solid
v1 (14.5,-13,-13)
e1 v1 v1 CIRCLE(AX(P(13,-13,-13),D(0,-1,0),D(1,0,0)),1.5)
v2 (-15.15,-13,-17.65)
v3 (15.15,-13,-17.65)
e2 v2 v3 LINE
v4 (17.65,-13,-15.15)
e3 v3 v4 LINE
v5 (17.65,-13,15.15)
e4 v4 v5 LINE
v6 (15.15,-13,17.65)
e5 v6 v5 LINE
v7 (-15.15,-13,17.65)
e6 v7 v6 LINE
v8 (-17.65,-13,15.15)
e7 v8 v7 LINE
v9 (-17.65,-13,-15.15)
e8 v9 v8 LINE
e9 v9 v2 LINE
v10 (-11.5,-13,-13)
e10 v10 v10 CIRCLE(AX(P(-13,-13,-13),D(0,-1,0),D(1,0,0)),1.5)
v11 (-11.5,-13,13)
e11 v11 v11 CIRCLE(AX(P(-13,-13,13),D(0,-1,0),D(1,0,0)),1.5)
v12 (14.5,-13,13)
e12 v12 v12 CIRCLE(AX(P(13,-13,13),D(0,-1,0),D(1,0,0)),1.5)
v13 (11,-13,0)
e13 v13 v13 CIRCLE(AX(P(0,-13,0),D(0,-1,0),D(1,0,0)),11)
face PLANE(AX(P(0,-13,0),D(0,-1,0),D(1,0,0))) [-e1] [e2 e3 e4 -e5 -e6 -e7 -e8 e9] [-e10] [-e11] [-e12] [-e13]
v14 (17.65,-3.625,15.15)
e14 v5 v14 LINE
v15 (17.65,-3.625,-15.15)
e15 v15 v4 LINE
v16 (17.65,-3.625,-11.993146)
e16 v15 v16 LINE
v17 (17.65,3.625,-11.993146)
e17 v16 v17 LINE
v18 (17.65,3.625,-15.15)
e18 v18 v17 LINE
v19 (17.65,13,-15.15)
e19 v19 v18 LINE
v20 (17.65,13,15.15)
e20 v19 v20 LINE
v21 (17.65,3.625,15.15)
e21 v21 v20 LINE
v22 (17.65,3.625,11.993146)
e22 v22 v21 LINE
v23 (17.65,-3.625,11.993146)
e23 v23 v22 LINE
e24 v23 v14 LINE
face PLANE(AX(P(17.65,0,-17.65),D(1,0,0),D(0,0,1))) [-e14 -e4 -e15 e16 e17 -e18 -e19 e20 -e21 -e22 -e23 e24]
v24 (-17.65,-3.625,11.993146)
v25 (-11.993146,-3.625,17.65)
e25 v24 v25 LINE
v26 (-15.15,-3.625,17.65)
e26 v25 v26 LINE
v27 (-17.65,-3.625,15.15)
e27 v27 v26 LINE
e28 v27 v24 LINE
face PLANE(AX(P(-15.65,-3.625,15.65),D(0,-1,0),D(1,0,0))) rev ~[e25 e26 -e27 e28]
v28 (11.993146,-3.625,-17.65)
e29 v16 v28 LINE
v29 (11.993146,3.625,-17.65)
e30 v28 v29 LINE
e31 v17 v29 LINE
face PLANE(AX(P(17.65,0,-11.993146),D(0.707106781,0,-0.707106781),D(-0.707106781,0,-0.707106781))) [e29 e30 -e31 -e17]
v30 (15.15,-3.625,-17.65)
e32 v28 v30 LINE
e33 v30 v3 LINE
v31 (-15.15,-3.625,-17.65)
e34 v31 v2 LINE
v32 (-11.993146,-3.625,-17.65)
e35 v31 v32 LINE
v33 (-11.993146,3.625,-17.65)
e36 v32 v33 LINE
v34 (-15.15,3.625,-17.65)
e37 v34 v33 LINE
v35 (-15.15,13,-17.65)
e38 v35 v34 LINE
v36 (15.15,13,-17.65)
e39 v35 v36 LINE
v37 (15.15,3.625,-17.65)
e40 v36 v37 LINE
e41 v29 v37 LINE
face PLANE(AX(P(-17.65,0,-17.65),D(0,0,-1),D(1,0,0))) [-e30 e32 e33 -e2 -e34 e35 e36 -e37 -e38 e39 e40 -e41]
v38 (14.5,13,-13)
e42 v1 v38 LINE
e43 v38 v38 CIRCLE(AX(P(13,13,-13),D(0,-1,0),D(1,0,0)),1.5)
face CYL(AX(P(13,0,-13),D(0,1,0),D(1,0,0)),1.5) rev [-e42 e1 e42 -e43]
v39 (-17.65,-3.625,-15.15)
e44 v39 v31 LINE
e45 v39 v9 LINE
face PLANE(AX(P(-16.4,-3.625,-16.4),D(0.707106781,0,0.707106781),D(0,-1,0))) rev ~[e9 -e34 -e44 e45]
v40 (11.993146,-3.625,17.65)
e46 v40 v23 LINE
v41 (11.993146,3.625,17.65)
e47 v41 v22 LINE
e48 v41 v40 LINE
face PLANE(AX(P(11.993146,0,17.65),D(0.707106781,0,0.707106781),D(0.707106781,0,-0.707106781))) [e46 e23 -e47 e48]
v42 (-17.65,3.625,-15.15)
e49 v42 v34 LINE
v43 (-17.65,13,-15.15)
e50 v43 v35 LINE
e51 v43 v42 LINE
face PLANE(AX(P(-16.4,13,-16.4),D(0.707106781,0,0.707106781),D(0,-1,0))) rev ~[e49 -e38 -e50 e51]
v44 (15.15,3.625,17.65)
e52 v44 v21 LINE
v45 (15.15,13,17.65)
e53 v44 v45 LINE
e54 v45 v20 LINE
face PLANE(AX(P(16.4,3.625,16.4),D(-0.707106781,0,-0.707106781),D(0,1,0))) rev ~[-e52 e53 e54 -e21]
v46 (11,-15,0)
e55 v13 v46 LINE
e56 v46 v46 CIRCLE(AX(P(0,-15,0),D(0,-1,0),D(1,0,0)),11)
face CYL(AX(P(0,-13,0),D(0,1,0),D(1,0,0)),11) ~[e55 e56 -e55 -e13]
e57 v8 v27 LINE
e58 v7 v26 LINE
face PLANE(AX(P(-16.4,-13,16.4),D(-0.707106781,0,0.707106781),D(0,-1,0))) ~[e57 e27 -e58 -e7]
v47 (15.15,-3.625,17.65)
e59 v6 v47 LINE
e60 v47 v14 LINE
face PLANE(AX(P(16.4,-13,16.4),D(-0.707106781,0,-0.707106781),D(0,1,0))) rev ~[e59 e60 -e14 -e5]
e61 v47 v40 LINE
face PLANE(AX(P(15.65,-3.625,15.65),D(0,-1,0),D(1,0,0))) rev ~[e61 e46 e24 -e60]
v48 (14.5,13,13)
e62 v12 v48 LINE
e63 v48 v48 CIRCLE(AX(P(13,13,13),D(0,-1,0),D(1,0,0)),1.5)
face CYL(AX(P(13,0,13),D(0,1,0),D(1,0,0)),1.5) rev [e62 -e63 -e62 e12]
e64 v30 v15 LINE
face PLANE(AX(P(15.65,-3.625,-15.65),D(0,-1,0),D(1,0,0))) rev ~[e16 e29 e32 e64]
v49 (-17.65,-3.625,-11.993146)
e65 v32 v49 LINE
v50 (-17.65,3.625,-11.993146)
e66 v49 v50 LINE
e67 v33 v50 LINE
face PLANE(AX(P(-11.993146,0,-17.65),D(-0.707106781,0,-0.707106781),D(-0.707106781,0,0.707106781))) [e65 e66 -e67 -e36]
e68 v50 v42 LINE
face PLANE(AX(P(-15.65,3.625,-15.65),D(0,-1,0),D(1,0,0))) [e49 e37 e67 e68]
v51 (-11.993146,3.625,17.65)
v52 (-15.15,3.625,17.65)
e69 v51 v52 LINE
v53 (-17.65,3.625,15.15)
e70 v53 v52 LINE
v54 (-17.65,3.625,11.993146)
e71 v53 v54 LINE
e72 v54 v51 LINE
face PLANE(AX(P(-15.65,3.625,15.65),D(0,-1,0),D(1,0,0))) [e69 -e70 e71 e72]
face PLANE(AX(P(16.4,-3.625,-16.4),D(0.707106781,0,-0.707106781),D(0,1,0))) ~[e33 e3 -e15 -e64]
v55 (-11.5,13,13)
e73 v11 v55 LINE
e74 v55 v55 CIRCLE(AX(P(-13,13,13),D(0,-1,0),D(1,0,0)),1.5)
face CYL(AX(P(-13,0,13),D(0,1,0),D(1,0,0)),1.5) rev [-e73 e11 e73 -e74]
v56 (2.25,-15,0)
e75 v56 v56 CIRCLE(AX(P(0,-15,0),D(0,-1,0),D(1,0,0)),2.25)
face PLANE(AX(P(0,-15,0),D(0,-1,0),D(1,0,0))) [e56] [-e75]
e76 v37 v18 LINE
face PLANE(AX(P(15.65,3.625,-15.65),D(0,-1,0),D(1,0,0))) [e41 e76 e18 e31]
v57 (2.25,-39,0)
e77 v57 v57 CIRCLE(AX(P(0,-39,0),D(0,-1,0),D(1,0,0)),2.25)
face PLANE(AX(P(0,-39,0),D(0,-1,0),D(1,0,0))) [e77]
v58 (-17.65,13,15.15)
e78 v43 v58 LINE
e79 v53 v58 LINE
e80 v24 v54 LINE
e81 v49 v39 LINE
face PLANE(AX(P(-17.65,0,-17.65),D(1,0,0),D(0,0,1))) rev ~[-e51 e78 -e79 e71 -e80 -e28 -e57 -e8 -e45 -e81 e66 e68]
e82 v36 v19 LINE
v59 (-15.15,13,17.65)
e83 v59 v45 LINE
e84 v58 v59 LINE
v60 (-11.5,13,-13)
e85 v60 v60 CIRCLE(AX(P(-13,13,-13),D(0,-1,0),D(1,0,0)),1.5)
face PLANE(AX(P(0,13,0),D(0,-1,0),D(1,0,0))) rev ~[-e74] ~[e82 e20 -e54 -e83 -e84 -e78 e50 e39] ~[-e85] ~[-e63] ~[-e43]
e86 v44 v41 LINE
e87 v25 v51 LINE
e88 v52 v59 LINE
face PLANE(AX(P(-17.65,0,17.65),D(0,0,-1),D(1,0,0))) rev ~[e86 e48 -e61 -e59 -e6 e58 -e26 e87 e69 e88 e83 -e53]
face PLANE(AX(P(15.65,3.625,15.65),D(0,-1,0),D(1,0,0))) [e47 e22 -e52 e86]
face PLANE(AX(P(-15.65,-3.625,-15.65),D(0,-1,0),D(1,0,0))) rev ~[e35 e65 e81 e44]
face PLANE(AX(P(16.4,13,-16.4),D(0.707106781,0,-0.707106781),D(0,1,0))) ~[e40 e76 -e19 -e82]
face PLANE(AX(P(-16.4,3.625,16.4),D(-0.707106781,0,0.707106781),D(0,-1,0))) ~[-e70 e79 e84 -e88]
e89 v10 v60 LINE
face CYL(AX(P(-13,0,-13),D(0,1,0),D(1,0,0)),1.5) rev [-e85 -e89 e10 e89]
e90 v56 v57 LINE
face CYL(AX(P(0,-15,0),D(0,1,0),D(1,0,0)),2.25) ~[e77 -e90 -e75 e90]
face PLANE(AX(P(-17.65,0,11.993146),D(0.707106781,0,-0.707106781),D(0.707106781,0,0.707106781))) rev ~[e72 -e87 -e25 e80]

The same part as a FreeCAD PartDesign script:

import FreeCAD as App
import Part
import Sketcher
from FreeCAD import Vector
Q = App.Units.Quantity


def edges_at(feature, points):
    """Names of the edges that pass closest to the given points."""
    edges = feature.Shape.Edges
    near = lambda p: min(range(len(edges)), key=lambda i: edges[i].distToShape(Part.Vertex(*p))[0])
    return sorted({f"Edge{near(p) + 1}" for p in points})

doc = App.newDocument("Part")
body = doc.addObject("PartDesign::Body", "Body")

sketch1 = doc.addObject("Sketcher::SketchObject", "Sketch")
body.addObject(sketch1)
sketch1.AttachmentSupport = (doc.XZ_Plane, [""])
sketch1.MapMode = "FlatFace"
sketch1.addGeometry(Part.LineSegment(Vector(-17.6, 17.6, 0), Vector(-17.6, -17.6, 0)), False)
sketch1.addGeometry(Part.LineSegment(Vector(-17.6, -17.6, 0), Vector(17.6, -17.6, 0)), False)
sketch1.addGeometry(Part.LineSegment(Vector(17.6, -17.6, 0), Vector(17.6, 17.6, 0)), False)
sketch1.addGeometry(Part.LineSegment(Vector(17.6, 17.6, 0), Vector(-17.6, 17.6, 0)), False)
sketch1.addGeometry(Part.Circle(Vector(-13, -13, 0), Vector(0, 0, 1), 1.5), False)
sketch1.addGeometry(Part.Circle(Vector(13, -13, 0), Vector(0, 0, 1), 1.5), False)
sketch1.addGeometry(Part.Circle(Vector(-13, 13, 0), Vector(0, 0, 1), 1.5), False)
sketch1.addGeometry(Part.Circle(Vector(13, 13, 0), Vector(0, 0, 1), 1.5), False)
sketch1.addConstraint(Sketcher.Constraint("Coincident", 0, 2, 1, 1))
sketch1.addConstraint(Sketcher.Constraint("Coincident", 1, 2, 2, 1))
sketch1.addConstraint(Sketcher.Constraint("Coincident", 2, 2, 3, 1))
sketch1.addConstraint(Sketcher.Constraint("Coincident", 3, 2, 0, 1))
sketch1.addConstraint(Sketcher.Constraint("Vertical", 0))
sketch1.addConstraint(Sketcher.Constraint("Horizontal", 1))
sketch1.addConstraint(Sketcher.Constraint("Vertical", 2))
sketch1.addConstraint(Sketcher.Constraint("Horizontal", 3))
sketch1.addConstraint(Sketcher.Constraint("Equal", 4, 5))
sketch1.addConstraint(Sketcher.Constraint("Equal", 5, 6))
sketch1.addConstraint(Sketcher.Constraint("Equal", 6, 7))
sketch1.addConstraint(Sketcher.Constraint("Symmetric", 5, 3, 6, 3, -1, 1))
sketch1.addConstraint(Sketcher.Constraint("Symmetric", 4, 3, 7, 3, -1, 1))
sketch1.addConstraint(Sketcher.Constraint("Symmetric", 0, 2, 2, 2, -1, 1))
sketch1.addConstraint(Sketcher.Constraint("Symmetric", 4, 3, 5, 3, -2))
sketch1.addConstraint(Sketcher.Constraint("Equal", 3, 0))
sketch1.addConstraint(Sketcher.Constraint("Diameter", 4, Q("3 mm")))
sketch1.addConstraint(Sketcher.Constraint("DistanceX", 1, 1, 1, 2, Q("35.3 mm")))
sketch1.addConstraint(Sketcher.Constraint("DistanceX", 4, 3, -1, 1, Q("13 mm")))
sketch1.addConstraint(Sketcher.Constraint("DistanceY", 4, 3, -1, 1, Q("13 mm")))
pad1 = doc.addObject("PartDesign::Pad", "Pad")
body.addObject(pad1)
pad1.Profile = sketch1
pad1.Length = 26
pad1.Midplane = True

sketch2 = doc.addObject("Sketcher::SketchObject", "Sketch001")
body.addObject(sketch2)
sketch2.AttachmentSupport = (doc.XZ_Plane, [""])
sketch2.MapMode = "FlatFace"
sketch2.AttachmentOffset = App.Placement(Vector(0, 0, 13), App.Rotation())
sketch2.addGeometry(Part.Circle(Vector(0, 0, 0), Vector(0, 0, 1), 11), False)
sketch2.addConstraint(Sketcher.Constraint("Coincident", 0, 3, -1, 1))
sketch2.addConstraint(Sketcher.Constraint("Diameter", 0, Q("22 mm")))
pad2 = doc.addObject("PartDesign::Pad", "Pad001")
body.addObject(pad2)
pad2.Profile = sketch2
pad2.Length = 2

sketch3 = doc.addObject("Sketcher::SketchObject", "Sketch002")
body.addObject(sketch3)
sketch3.AttachmentSupport = (doc.XZ_Plane, [""])
sketch3.MapMode = "FlatFace"
sketch3.AttachmentOffset = App.Placement(Vector(0, 0, 15), App.Rotation())
sketch3.addGeometry(Part.Circle(Vector(0, 0, 0), Vector(0, 0, 1), 2.2), False)
sketch3.addConstraint(Sketcher.Constraint("Coincident", 0, 3, -1, 1))
sketch3.addConstraint(Sketcher.Constraint("Diameter", 0, Q("4.5 mm")))
pad3 = doc.addObject("PartDesign::Pad", "Pad002")
body.addObject(pad3)
pad3.Profile = sketch3
pad3.Length = 24

sketch4 = doc.addObject("Sketcher::SketchObject", "Sketch003")
body.addObject(sketch4)
sketch4.AttachmentSupport = (doc.XZ_Plane, [""])
sketch4.MapMode = "FlatFace"
sketch4.addGeometry(Part.LineSegment(Vector(18, 18, 0), Vector(12, 18, 0)), False)
sketch4.addGeometry(Part.LineSegment(Vector(12, 18, 0), Vector(18, 12, 0)), False)
sketch4.addGeometry(Part.LineSegment(Vector(18, 12, 0), Vector(18, 18, 0)), False)
sketch4.addGeometry(Part.LineSegment(Vector(12, -18, 0), Vector(18, -18, 0)), False)
sketch4.addGeometry(Part.LineSegment(Vector(18, -18, 0), Vector(18, -12, 0)), False)
sketch4.addGeometry(Part.LineSegment(Vector(18, -12, 0), Vector(12, -18, 0)), False)
sketch4.addGeometry(Part.LineSegment(Vector(-18, -12, 0), Vector(-18, -18, 0)), False)
sketch4.addGeometry(Part.LineSegment(Vector(-18, -18, 0), Vector(-12, -18, 0)), False)
sketch4.addGeometry(Part.LineSegment(Vector(-12, -18, 0), Vector(-18, -12, 0)), False)
sketch4.addGeometry(Part.LineSegment(Vector(-12, 18, 0), Vector(-18, 18, 0)), False)
sketch4.addGeometry(Part.LineSegment(Vector(-18, 18, 0), Vector(-18, 12, 0)), False)
sketch4.addGeometry(Part.LineSegment(Vector(-18, 12, 0), Vector(-12, 18, 0)), False)
sketch4.addConstraint(Sketcher.Constraint("Coincident", 0, 2, 1, 1))
sketch4.addConstraint(Sketcher.Constraint("Coincident", 1, 2, 2, 1))
sketch4.addConstraint(Sketcher.Constraint("Coincident", 2, 2, 0, 1))
sketch4.addConstraint(Sketcher.Constraint("Coincident", 3, 2, 4, 1))
sketch4.addConstraint(Sketcher.Constraint("Coincident", 4, 2, 5, 1))
sketch4.addConstraint(Sketcher.Constraint("Coincident", 5, 2, 3, 1))
sketch4.addConstraint(Sketcher.Constraint("Coincident", 6, 2, 7, 1))
sketch4.addConstraint(Sketcher.Constraint("Coincident", 7, 2, 8, 1))
sketch4.addConstraint(Sketcher.Constraint("Coincident", 8, 2, 6, 1))
sketch4.addConstraint(Sketcher.Constraint("Coincident", 9, 2, 10, 1))
sketch4.addConstraint(Sketcher.Constraint("Coincident", 10, 2, 11, 1))
sketch4.addConstraint(Sketcher.Constraint("Coincident", 11, 2, 9, 1))
sketch4.addConstraint(Sketcher.Constraint("Horizontal", 0))
sketch4.addConstraint(Sketcher.Constraint("Vertical", 2))
sketch4.addConstraint(Sketcher.Constraint("Horizontal", 3))
sketch4.addConstraint(Sketcher.Constraint("Vertical", 4))
sketch4.addConstraint(Sketcher.Constraint("Vertical", 6))
sketch4.addConstraint(Sketcher.Constraint("Horizontal", 7))
sketch4.addConstraint(Sketcher.Constraint("Horizontal", 9))
sketch4.addConstraint(Sketcher.Constraint("Vertical", 10))
sketch4.addConstraint(Sketcher.Constraint("Symmetric", 2, 2, 6, 2, -1, 1))
sketch4.addConstraint(Sketcher.Constraint("Symmetric", 3, 2, 9, 2, -1, 1))
sketch4.addConstraint(Sketcher.Constraint("Symmetric", 3, 2, 6, 2, -2))
sketch4.addConstraint(Sketcher.Constraint("Perpendicular", 1, 5))
sketch4.addConstraint(Sketcher.Constraint("Perpendicular", 5, 8))
sketch4.addConstraint(Sketcher.Constraint("Perpendicular", 8, 11))
sketch4.addConstraint(Sketcher.Constraint("Horizontal", 4, 2, 8, 2))
sketch4.addConstraint(Sketcher.Constraint("Horizontal", 1, 2, 10, 2))
sketch4.addConstraint(Sketcher.Constraint("Vertical", 0, 2, 5, 2))
sketch4.addConstraint(Sketcher.Constraint("Vertical", 7, 2, 11, 2))
sketch4.addConstraint(Sketcher.Constraint("Distance", 1, Q("8 mm")))
sketch4.addConstraint(Sketcher.Constraint("DistanceY", 3, 2, 2, 2, Q("35.3 mm")))
sketch4.addConstraint(Sketcher.Constraint("DistanceX", 6, 2, 3, 2, Q("35.3 mm")))
pocket1 = doc.addObject("PartDesign::Pocket", "Pocket")
body.addObject(pocket1)
pocket1.Profile = sketch4
pocket1.Length = 7.25
pocket1.Midplane = True
doc.recompute()

chamfer = doc.addObject("PartDesign::Chamfer", "Chamfer")
body.addObject(chamfer)
chamfer.Base = (pocket1, edges_at(pocket1, [
    (17.65, -8.312, 17.65),
    (17.65, 8.312, 17.65),
    (-17.65, 8.312, 17.65),
    (-17.65, -8.312, 17.65),
    (17.65, 8.312, -17.65),
    (17.65, -8.312, -17.65),
    (-17.65, -8.312, -17.65),
    (-17.65, 8.312, -17.65),
]))
chamfer.Size = 2.5

doc.recompute()
